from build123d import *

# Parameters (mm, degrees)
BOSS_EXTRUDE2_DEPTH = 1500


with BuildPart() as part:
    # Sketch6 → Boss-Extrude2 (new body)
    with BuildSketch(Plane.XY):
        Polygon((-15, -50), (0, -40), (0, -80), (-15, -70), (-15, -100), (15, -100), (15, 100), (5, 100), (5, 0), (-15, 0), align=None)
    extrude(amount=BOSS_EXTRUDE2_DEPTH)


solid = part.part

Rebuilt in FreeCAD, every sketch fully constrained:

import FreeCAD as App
import Part
import Sketcher

V = App.Vector
Q = App.Units.Quantity


def add_polygon(sketch, points):
    """Adds a closed chain of lines whose ends are joined by coincident constraints."""
    first, n = sketch.GeometryCount, len(points)
    for a, b in zip(points, points[1:] + points[:1]):
        sketch.addGeometry(Part.LineSegment(App.Vector(*a, 0), App.Vector(*b, 0)), False)
    for i in range(n):
        sketch.addConstraint(Sketcher.Constraint("Coincident", first + i, 2, first + (i + 1) % n, 1))

doc = App.newDocument("Part")
body = doc.addObject("PartDesign::Body", "Body")

# Sketch on XY plane
sketch1 = doc.addObject("Sketcher::SketchObject", "Sketch")
body.addObject(sketch1)
sketch1.AttachmentSupport = (doc.XY_Plane, [""])
sketch1.MapMode = "FlatFace"
add_polygon(sketch1, [(-15, -50), (0, -40), (0, -80), (-15, -70), (-15, -100), (15, -100), (15, 100), (5, 100), (5, 0), (-15, 0)])  # lines 0-9
sketch1.addConstraint([
    Sketcher.Constraint("Vertical", 1),
    Sketcher.Constraint("Vertical", 3),
    Sketcher.Constraint("Horizontal", 4),
    Sketcher.Constraint("Vertical", 5),
    Sketcher.Constraint("Horizontal", 6),
    Sketcher.Constraint("Vertical", 7),
    Sketcher.Constraint("Horizontal", 8),
    Sketcher.Constraint("Vertical", 9),
    Sketcher.Constraint("Symmetric", 3, 2, 5, 2, -1, 1),
    Sketcher.Constraint("PointOnObject", 0, 2, -2),
    Sketcher.Constraint("PointOnObject", 7, 2, -1),
    Sketcher.Constraint("Vertical", 3, 2, 8, 2),
    Sketcher.Constraint("Equal", 4, 3),
    Sketcher.Constraint("Equal", 0, 2),
    Sketcher.Constraint("DistanceX", 4, 1, 4, 2, Q("30 mm")),
    Sketcher.Constraint("DistanceX", 6, 2, 6, 1, Q("10 mm")),
    Sketcher.Constraint("DistanceY", 1, 2, 1, 1, Q("40 mm")),
    Sketcher.Constraint("DistanceY", 5, 1, 5, 2, Q("200 mm")),
    Sketcher.Constraint("DistanceY", 9, 2, 9, 1, Q("50 mm")),
])
pad1 = doc.addObject("PartDesign::Pad", "Pad")
body.addObject(pad1)
pad1.Profile = sketch1
pad1.Length = 1500

doc.recompute()
